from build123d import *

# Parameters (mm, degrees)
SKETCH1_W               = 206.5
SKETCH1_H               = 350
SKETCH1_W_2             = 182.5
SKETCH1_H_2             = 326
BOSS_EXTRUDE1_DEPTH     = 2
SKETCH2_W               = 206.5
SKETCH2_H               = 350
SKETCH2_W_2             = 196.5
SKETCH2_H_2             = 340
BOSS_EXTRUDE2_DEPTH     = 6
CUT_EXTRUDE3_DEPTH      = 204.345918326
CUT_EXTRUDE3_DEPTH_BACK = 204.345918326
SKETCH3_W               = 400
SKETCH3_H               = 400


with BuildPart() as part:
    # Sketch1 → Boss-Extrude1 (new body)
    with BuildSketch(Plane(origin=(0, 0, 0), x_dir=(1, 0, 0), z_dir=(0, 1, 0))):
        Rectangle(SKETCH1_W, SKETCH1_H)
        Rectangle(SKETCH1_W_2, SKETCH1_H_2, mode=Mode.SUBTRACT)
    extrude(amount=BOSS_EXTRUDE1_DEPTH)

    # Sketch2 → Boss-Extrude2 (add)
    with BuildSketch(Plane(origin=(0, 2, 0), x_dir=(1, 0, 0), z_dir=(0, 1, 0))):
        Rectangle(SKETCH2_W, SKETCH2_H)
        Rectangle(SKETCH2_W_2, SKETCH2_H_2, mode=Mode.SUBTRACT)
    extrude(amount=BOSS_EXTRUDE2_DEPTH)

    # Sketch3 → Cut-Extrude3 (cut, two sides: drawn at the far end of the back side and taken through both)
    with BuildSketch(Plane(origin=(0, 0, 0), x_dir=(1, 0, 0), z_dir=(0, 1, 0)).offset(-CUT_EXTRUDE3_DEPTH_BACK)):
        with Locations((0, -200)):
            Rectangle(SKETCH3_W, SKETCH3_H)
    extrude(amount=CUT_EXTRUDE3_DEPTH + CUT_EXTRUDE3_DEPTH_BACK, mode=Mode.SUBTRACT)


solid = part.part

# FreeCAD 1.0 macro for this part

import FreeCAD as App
import Part
import Sketcher
from FreeCAD import Vector
Q = App.Units.Quantity

doc = App.newDocument("Part")
body = doc.addObject("PartDesign::Body", "Body")

# Sketch on XZ plane
sketch1 = body.newObject("Sketcher::SketchObject", "Sketch")
sketch1.AttachmentSupport = (doc.getObject("XZ_Plane"), [""])
sketch1.MapMode = "FlatFace"
sketch1.addGeometry([
    Part.LineSegment(Vector(-103.25, -175, 0), Vector(-103.25, 175, 0)),  # 0
    Part.LineSegment(Vector(-103.25, 175, 0), Vector(103.25, 175, 0)),  # 1
    Part.LineSegment(Vector(103.25, 175, 0), Vector(103.25, -175, 0)),  # 2
    Part.LineSegment(Vector(103.25, -175, 0), Vector(-103.25, -175, 0)),  # 3
    Part.LineSegment(Vector(91.25, 163, 0), Vector(-91.25, 163, 0)),  # 4
    Part.LineSegment(Vector(-91.25, 163, 0), Vector(-91.25, -163, 0)),  # 5
    Part.LineSegment(Vector(-91.25, -163, 0), Vector(91.25, -163, 0)),  # 6
    Part.LineSegment(Vector(91.25, -163, 0), Vector(91.25, 163, 0)),  # 7
], False)
sketch1.addConstraint([
    Sketcher.Constraint("Coincident", 0, 2, 1, 1),
    Sketcher.Constraint("Coincident", 1, 2, 2, 1),
    Sketcher.Constraint("Coincident", 2, 2, 3, 1),
    Sketcher.Constraint("Coincident", 3, 2, 0, 1),
    Sketcher.Constraint("Coincident", 4, 2, 5, 1),
    Sketcher.Constraint("Coincident", 5, 2, 6, 1),
    Sketcher.Constraint("Coincident", 6, 2, 7, 1),
    Sketcher.Constraint("Coincident", 7, 2, 4, 1),
    Sketcher.Constraint("Vertical", 0),
    Sketcher.Constraint("Horizontal", 1),
    Sketcher.Constraint("Vertical", 2),
    Sketcher.Constraint("Horizontal", 3),
    Sketcher.Constraint("Horizontal", 4),
    Sketcher.Constraint("Vertical", 5),
    Sketcher.Constraint("Horizontal", 6),
    Sketcher.Constraint("Vertical", 7),
    Sketcher.Constraint("Symmetric", 0, 2, 2, 2, -1, 1),
    Sketcher.Constraint("Symmetric", 4, 2, 6, 2, -1, 1),
    Sketcher.Constraint("DistanceY", 0, 1, 0, 2, Q("350 mm")),
    Sketcher.Constraint("DistanceY", 5, 2, 5, 1, Q("326 mm")),
    Sketcher.Constraint("DistanceX", 1, 1, 1, 2, Q("206.5 mm")),
    Sketcher.Constraint("DistanceX", 4, 2, 4, 1, Q("182.5 mm")),
])
pad1 = body.newObject("PartDesign::Pad", "Pad")
pad1.Profile = sketch1
pad1.Length = 2
pad1.Reversed = True

# Sketch on XZ plane
sketch2 = body.newObject("Sketcher::SketchObject", "Sketch001")
sketch2.AttachmentSupport = (doc.getObject("XZ_Plane"), [""])
sketch2.MapMode = "FlatFace"
sketch2.AttachmentOffset = App.Placement(Vector(0, 0, -2), App.Rotation())
sketch2.addGeometry([
    Part.LineSegment(Vector(-103.25, -175, 0), Vector(-103.25, 175, 0)),  # 0
    Part.LineSegment(Vector(-103.25, 175, 0), Vector(103.25, 175, 0)),  # 1
    Part.LineSegment(Vector(103.25, 175, 0), Vector(103.25, -175, 0)),  # 2
    Part.LineSegment(Vector(103.25, -175, 0), Vector(-103.25, -175, 0)),  # 3
    Part.LineSegment(Vector(98.25, 170, 0), Vector(-98.25, 170, 0)),  # 4
    Part.LineSegment(Vector(-98.25, 170, 0), Vector(-98.25, -170, 0)),  # 5
    Part.LineSegment(Vector(-98.25, -170, 0), Vector(98.25, -170, 0)),  # 6
    Part.LineSegment(Vector(98.25, -170, 0), Vector(98.25, 170, 0)),  # 7
], False)
sketch2.addConstraint([
    Sketcher.Constraint("Coincident", 0, 2, 1, 1),
    Sketcher.Constraint("Coincident", 1, 2, 2, 1),
    Sketcher.Constraint("Coincident", 2, 2, 3, 1),
    Sketcher.Constraint("Coincident", 3, 2, 0, 1),
    Sketcher.Constraint("Coincident", 4, 2, 5, 1),
    Sketcher.Constraint("Coincident", 5, 2, 6, 1),
    Sketcher.Constraint("Coincident", 6, 2, 7, 1),
    Sketcher.Constraint("Coincident", 7, 2, 4, 1),
    Sketcher.Constraint("Vertical", 0),
    Sketcher.Constraint("Horizontal", 1),
    Sketcher.Constraint("Vertical", 2),
    Sketcher.Constraint("Horizontal", 3),
    Sketcher.Constraint("Horizontal", 4),
    Sketcher.Constraint("Vertical", 5),
    Sketcher.Constraint("Horizontal", 6),
    Sketcher.Constraint("Vertical", 7),
    Sketcher.Constraint("Symmetric", 0, 2, 2, 2, -1, 1),
    Sketcher.Constraint("Symmetric", 4, 2, 6, 2, -1, 1),
    Sketcher.Constraint("DistanceY", 0, 1, 0, 2, Q("350 mm")),
    Sketcher.Constraint("DistanceY", 5, 2, 5, 1, Q("340 mm")),
    Sketcher.Constraint("DistanceX", 1, 1, 1, 2, Q("206.5 mm")),
    Sketcher.Constraint("DistanceX", 4, 2, 4, 1, Q("196.5 mm")),
])
pad2 = body.newObject("PartDesign::Pad", "Pad001")
pad2.Profile = sketch2
pad2.Length = 6
pad2.Reversed = True

# Sketch on XZ plane
sketch3 = body.newObject("Sketcher::SketchObject", "Sketch002")
sketch3.AttachmentSupport = (doc.getObject("XZ_Plane"), [""])
sketch3.MapMode = "FlatFace"
sketch3.addGeometry([
    Part.LineSegment(Vector(-200, 0, 0), Vector(-200, 400, 0)),
    Part.LineSegment(Vector(-200, 400, 0), Vector(200, 400, 0)),
    Part.LineSegment(Vector(200, 400, 0), Vector(200, 0, 0)),
    Part.LineSegment(Vector(200, 0, 0), Vector(-200, 0, 0)),
], False)
sketch3.addConstraint([
    Sketcher.Constraint("Coincident", 0, 2, 1, 1),
    Sketcher.Constraint("Coincident", 1, 2, 2, 1),
    Sketcher.Constraint("Coincident", 2, 2, 3, 1),
    Sketcher.Constraint("Coincident", 3, 2, 0, 1),
    Sketcher.Constraint("Vertical", 0),
    Sketcher.Constraint("Horizontal", 1),
    Sketcher.Constraint("Vertical", 2),
    Sketcher.Constraint("Horizontal", 3),
    Sketcher.Constraint("Symmetric", 2, 2, 3, 2, -1, 1),
    Sketcher.Constraint("Equal", 3, 0),
    Sketcher.Constraint("DistanceX", 1, 1, 1, 2, Q("400 mm")),
])
pocket1 = body.newObject("PartDesign::Pocket", "Pocket")
pocket1.Profile = sketch3
pocket1.Type = "ThroughAll"
pocket1.Midplane = True

doc.recompute()
